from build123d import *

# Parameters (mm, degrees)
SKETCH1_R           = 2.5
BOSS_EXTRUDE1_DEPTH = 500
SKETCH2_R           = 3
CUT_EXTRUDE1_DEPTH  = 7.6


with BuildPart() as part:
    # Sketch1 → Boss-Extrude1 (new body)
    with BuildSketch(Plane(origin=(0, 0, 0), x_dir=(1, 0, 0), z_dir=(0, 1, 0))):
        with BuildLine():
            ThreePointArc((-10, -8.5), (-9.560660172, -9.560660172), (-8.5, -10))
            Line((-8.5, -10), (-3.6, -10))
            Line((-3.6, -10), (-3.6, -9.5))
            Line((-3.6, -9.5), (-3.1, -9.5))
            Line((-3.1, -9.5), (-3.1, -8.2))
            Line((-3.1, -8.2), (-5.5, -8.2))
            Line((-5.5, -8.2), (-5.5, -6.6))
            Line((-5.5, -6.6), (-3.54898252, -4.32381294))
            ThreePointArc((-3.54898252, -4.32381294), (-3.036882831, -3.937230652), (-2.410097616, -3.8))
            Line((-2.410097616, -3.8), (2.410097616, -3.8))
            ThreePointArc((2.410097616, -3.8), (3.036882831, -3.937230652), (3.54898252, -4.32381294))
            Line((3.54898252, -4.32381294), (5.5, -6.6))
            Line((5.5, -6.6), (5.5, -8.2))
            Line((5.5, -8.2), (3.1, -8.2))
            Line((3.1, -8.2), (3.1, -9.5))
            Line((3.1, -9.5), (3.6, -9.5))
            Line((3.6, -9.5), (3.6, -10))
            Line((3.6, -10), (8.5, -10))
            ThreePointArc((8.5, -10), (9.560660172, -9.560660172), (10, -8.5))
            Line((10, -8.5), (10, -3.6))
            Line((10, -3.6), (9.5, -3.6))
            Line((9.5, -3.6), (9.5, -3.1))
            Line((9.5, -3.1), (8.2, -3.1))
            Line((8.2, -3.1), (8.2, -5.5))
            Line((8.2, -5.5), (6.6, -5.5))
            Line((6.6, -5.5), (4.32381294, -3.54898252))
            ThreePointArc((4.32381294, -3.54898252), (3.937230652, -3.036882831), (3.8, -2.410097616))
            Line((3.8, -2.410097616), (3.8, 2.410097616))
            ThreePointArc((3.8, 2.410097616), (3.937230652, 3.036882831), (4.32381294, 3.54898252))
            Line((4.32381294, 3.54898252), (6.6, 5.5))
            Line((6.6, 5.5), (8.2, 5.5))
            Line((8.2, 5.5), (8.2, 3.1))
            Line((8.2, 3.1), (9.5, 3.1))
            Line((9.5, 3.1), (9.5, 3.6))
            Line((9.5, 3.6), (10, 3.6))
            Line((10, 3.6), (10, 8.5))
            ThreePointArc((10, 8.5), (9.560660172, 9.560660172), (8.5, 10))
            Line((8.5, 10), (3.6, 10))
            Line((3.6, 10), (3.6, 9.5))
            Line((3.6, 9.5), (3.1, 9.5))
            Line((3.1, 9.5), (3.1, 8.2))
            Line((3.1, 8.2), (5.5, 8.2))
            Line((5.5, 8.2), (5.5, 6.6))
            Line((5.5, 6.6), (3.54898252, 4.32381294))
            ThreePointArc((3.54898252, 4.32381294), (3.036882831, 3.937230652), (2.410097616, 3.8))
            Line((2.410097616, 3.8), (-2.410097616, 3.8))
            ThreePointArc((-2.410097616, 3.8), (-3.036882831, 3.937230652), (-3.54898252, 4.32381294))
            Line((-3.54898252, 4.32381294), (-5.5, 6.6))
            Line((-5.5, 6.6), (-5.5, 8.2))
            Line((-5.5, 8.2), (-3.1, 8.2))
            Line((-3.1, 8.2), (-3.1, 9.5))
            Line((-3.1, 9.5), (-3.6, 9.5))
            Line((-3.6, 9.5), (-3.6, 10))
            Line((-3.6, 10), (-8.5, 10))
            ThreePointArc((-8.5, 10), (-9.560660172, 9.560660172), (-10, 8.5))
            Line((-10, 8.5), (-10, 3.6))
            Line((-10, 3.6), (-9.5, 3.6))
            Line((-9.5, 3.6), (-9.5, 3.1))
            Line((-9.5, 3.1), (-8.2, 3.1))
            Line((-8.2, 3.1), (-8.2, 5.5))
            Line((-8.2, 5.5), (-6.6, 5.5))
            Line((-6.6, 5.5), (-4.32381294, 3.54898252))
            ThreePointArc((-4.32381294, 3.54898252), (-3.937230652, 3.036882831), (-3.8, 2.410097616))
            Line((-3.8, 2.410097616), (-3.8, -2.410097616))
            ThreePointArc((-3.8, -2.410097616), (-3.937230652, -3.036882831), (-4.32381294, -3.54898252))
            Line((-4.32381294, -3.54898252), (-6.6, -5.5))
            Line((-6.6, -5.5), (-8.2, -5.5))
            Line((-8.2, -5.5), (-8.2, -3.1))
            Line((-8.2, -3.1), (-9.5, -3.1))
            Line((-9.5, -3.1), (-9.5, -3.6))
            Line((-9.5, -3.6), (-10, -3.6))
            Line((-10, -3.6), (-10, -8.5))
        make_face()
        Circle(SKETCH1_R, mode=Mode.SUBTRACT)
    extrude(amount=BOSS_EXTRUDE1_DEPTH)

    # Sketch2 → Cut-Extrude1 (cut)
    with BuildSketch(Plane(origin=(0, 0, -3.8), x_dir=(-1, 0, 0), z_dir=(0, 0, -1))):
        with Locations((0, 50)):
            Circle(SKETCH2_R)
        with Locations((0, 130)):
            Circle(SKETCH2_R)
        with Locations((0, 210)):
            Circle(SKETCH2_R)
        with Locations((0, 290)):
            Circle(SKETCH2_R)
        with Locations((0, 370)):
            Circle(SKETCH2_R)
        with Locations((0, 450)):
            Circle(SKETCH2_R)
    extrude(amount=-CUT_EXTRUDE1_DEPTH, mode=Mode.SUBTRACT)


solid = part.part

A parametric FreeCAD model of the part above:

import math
import FreeCAD as App
import Part
import Sketcher

V = App.Vector

doc = App.newDocument("Part")
body = doc.addObject("PartDesign::Body", "Body")

sketch1 = body.newObject("Sketcher::SketchObject", "Sketch")
sketch1.AttachmentSupport = (doc.getObject("XZ_Plane"), [""])
sketch1.MapMode = "FlatFace"
sketch1.addGeometry(Part.ArcOfCircle(Part.Circle(V(-8.5, 8.5, 0), V(0, 0, 1), 1.5), math.radians(90), math.radians(180)), False)
sketch1.addGeometry(Part.LineSegment(V(-8.5, 10, 0), V(-3.6, 10, 0)), False)
sketch1.addGeometry(Part.LineSegment(V(-3.6, 10, 0), V(-3.6, 9.5, 0)), False)
sketch1.addGeometry(Part.LineSegment(V(-3.6, 9.5, 0), V(-3.1, 9.5, 0)), False)
sketch1.addGeometry(Part.LineSegment(V(-3.1, 9.5, 0), V(-3.1, 8.2, 0)), False)
sketch1.addGeometry(Part.LineSegment(V(-3.1, 8.2, 0), V(-5.5, 8.2, 0)), False)
sketch1.addGeometry(Part.LineSegment(V(-5.5, 8.2, 0), V(-5.5, 6.6, 0)), False)
sketch1.addGeometry(Part.LineSegment(V(-5.5, 6.6, 0), V(-3.548983, 4.323813, 0)), False)
sketch1.addGeometry(Part.ArcOfCircle(Part.Circle(V(-2.410098, 5.3, 0), V(0, 0, 1), 1.5), math.radians(-139.398705), math.radians(-90)), False)
sketch1.addGeometry(Part.LineSegment(V(-2.410098, 3.8, 0), V(2.410098, 3.8, 0)), False)
sketch1.addGeometry(Part.ArcOfCircle(Part.Circle(V(2.410098, 5.3, 0), V(0, 0, 1), 1.5), math.radians(-90), math.radians(-40.601295)), False)
sketch1.addGeometry(Part.LineSegment(V(3.548983, 4.323813, 0), V(5.5, 6.6, 0)), False)
sketch1.addGeometry(Part.LineSegment(V(5.5, 6.6, 0), V(5.5, 8.2, 0)), False)
sketch1.addGeometry(Part.LineSegment(V(5.5, 8.2, 0), V(3.1, 8.2, 0)), False)
sketch1.addGeometry(Part.LineSegment(V(3.1, 8.2, 0), V(3.1, 9.5, 0)), False)
sketch1.addGeometry(Part.LineSegment(V(3.1, 9.5, 0), V(3.6, 9.5, 0)), False)
sketch1.addGeometry(Part.LineSegment(V(3.6, 9.5, 0), V(3.6, 10, 0)), False)
sketch1.addGeometry(Part.LineSegment(V(3.6, 10, 0), V(8.5, 10, 0)), False)
sketch1.addGeometry(Part.ArcOfCircle(Part.Circle(V(8.5, 8.5, 0), V(0, 0, 1), 1.5), math.radians(0), math.radians(90)), False)
sketch1.addGeometry(Part.LineSegment(V(10, 8.5, 0), V(10, 3.6, 0)), False)
sketch1.addGeometry(Part.LineSegment(V(10, 3.6, 0), V(9.5, 3.6, 0)), False)
sketch1.addGeometry(Part.LineSegment(V(9.5, 3.6, 0), V(9.5, 3.1, 0)), False)
sketch1.addGeometry(Part.LineSegment(V(9.5, 3.1, 0), V(8.2, 3.1, 0)), False)
sketch1.addGeometry(Part.LineSegment(V(8.2, 3.1, 0), V(8.2, 5.5, 0)), False)
sketch1.addGeometry(Part.LineSegment(V(8.2, 5.5, 0), V(6.6, 5.5, 0)), False)
sketch1.addGeometry(Part.LineSegment(V(6.6, 5.5, 0), V(4.323813, 3.548983, 0)), False)
sketch1.addGeometry(Part.ArcOfCircle(Part.Circle(V(5.3, 2.410098, 0), V(0, 0, 1), 1.5), math.radians(130.601295), math.radians(180)), False)
sketch1.addGeometry(Part.LineSegment(V(3.8, 2.410098, 0), V(3.8, -2.410098, 0)), False)
sketch1.addGeometry(Part.ArcOfCircle(Part.Circle(V(5.3, -2.410098, 0), V(0, 0, 1), 1.5), math.radians(180), math.radians(229.398705)), False)
sketch1.addGeometry(Part.LineSegment(V(4.323813, -3.548983, 0), V(6.6, -5.5, 0)), False)
sketch1.addGeometry(Part.LineSegment(V(6.6, -5.5, 0), V(8.2, -5.5, 0)), False)
sketch1.addGeometry(Part.LineSegment(V(8.2, -5.5, 0), V(8.2, -3.1, 0)), False)
sketch1.addGeometry(Part.LineSegment(V(8.2, -3.1, 0), V(9.5, -3.1, 0)), False)
sketch1.addGeometry(Part.LineSegment(V(9.5, -3.1, 0), V(9.5, -3.6, 0)), False)
sketch1.addGeometry(Part.LineSegment(V(9.5, -3.6, 0), V(10, -3.6, 0)), False)
sketch1.addGeometry(Part.LineSegment(V(10, -3.6, 0), V(10, -8.5, 0)), False)
sketch1.addGeometry(Part.ArcOfCircle(Part.Circle(V(8.5, -8.5, 0), V(0, 0, 1), 1.5), math.radians(-90), math.radians(0)), False)
sketch1.addGeometry(Part.LineSegment(V(8.5, -10, 0), V(3.6, -10, 0)), False)
sketch1.addGeometry(Part.LineSegment(V(3.6, -10, 0), V(3.6, -9.5, 0)), False)
sketch1.addGeometry(Part.LineSegment(V(3.6, -9.5, 0), V(3.1, -9.5, 0)), False)
sketch1.addGeometry(Part.LineSegment(V(3.1, -9.5, 0), V(3.1, -8.2, 0)), False)
sketch1.addGeometry(Part.LineSegment(V(3.1, -8.2, 0), V(5.5, -8.2, 0)), False)
sketch1.addGeometry(Part.LineSegment(V(5.5, -8.2, 0), V(5.5, -6.6, 0)), False)
sketch1.addGeometry(Part.LineSegment(V(5.5, -6.6, 0), V(3.548983, -4.323813, 0)), False)
sketch1.addGeometry(Part.ArcOfCircle(Part.Circle(V(2.410098, -5.3, 0), V(0, 0, 1), 1.5), math.radians(40.601295), math.radians(90)), False)
sketch1.addGeometry(Part.LineSegment(V(2.410098, -3.8, 0), V(-2.410098, -3.8, 0)), False)
sketch1.addGeometry(Part.ArcOfCircle(Part.Circle(V(-2.410098, -5.3, 0), V(0, 0, 1), 1.5), math.radians(90), math.radians(139.398705)), False)
sketch1.addGeometry(Part.LineSegment(V(-3.548983, -4.323813, 0), V(-5.5, -6.6, 0)), False)
sketch1.addGeometry(Part.LineSegment(V(-5.5, -6.6, 0), V(-5.5, -8.2, 0)), False)
sketch1.addGeometry(Part.LineSegment(V(-5.5, -8.2, 0), V(-3.1, -8.2, 0)), False)
sketch1.addGeometry(Part.LineSegment(V(-3.1, -8.2, 0), V(-3.1, -9.5, 0)), False)
sketch1.addGeometry(Part.LineSegment(V(-3.1, -9.5, 0), V(-3.6, -9.5, 0)), False)
sketch1.addGeometry(Part.LineSegment(V(-3.6, -9.5, 0), V(-3.6, -10, 0)), False)
sketch1.addGeometry(Part.LineSegment(V(-3.6, -10, 0), V(-8.5, -10, 0)), False)
sketch1.addGeometry(Part.ArcOfCircle(Part.Circle(V(-8.5, -8.5, 0), V(0, 0, 1), 1.5), math.radians(180), math.radians(270)), False)
sketch1.addGeometry(Part.LineSegment(V(-10, -8.5, 0), V(-10, -3.6, 0)), False)
sketch1.addGeometry(Part.LineSegment(V(-10, -3.6, 0), V(-9.5, -3.6, 0)), False)
sketch1.addGeometry(Part.LineSegment(V(-9.5, -3.6, 0), V(-9.5, -3.1, 0)), False)
sketch1.addGeometry(Part.LineSegment(V(-9.5, -3.1, 0), V(-8.2, -3.1, 0)), False)
sketch1.addGeometry(Part.LineSegment(V(-8.2, -3.1, 0), V(-8.2, -5.5, 0)), False)
sketch1.addGeometry(Part.LineSegment(V(-8.2, -5.5, 0), V(-6.6, -5.5, 0)), False)
sketch1.addGeometry(Part.LineSegment(V(-6.6, -5.5, 0), V(-4.323813, -3.548983, 0)), False)
sketch1.addGeometry(Part.ArcOfCircle(Part.Circle(V(-5.3, -2.410098, 0), V(0, 0, 1), 1.5), math.radians(-49.398705), math.radians(0)), False)
sketch1.addGeometry(Part.LineSegment(V(-3.8, -2.410098, 0), V(-3.8, 2.410098, 0)), False)
sketch1.addGeometry(Part.ArcOfCircle(Part.Circle(V(-5.3, 2.410098, 0), V(0, 0, 1), 1.5), math.radians(0), math.radians(49.398705)), False)
sketch1.addGeometry(Part.LineSegment(V(-4.323813, 3.548983, 0), V(-6.6, 5.5, 0)), False)
sketch1.addGeometry(Part.LineSegment(V(-6.6, 5.5, 0), V(-8.2, 5.5, 0)), False)
sketch1.addGeometry(Part.LineSegment(V(-8.2, 5.5, 0), V(-8.2, 3.1, 0)), False)
sketch1.addGeometry(Part.LineSegment(V(-8.2, 3.1, 0), V(-9.5, 3.1, 0)), False)
sketch1.addGeometry(Part.LineSegment(V(-9.5, 3.1, 0), V(-9.5, 3.6, 0)), False)
sketch1.addGeometry(Part.LineSegment(V(-9.5, 3.6, 0), V(-10, 3.6, 0)), False)
sketch1.addGeometry(Part.LineSegment(V(-10, 3.6, 0), V(-10, 8.5, 0)), False)
sketch1.addGeometry(Part.Circle(V(0, 0, 0), V(0, 0, 1), 2.5), False)
sketch1.addConstraint(Sketcher.Constraint("Tangent", 0, 1, 1, 1))
sketch1.addConstraint(Sketcher.Constraint("Coincident", 1, 2, 2, 1))
sketch1.addConstraint(Sketcher.Constraint("Coincident", 2, 2, 3, 1))
sketch1.addConstraint(Sketcher.Constraint("Coincident", 3, 2, 4, 1))
sketch1.addConstraint(Sketcher.Constraint("Coincident", 4, 2, 5, 1))
sketch1.addConstraint(Sketcher.Constraint("Coincident", 5, 2, 6, 1))
sketch1.addConstraint(Sketcher.Constraint("Coincident", 6, 2, 7, 1))
sketch1.addConstraint(Sketcher.Constraint("Tangent", 7, 2, 8, 1))
sketch1.addConstraint(Sketcher.Constraint("Tangent", 8, 2, 9, 1))
sketch1.addConstraint(Sketcher.Constraint("Tangent", 9, 2, 10, 1))
sketch1.addConstraint(Sketcher.Constraint("Tangent", 10, 2, 11, 1))
sketch1.addConstraint(Sketcher.Constraint("Coincident", 11, 2, 12, 1))
sketch1.addConstraint(Sketcher.Constraint("Coincident", 12, 2, 13, 1))
sketch1.addConstraint(Sketcher.Constraint("Coincident", 13, 2, 14, 1))
sketch1.addConstraint(Sketcher.Constraint("Coincident", 14, 2, 15, 1))
sketch1.addConstraint(Sketcher.Constraint("Coincident", 15, 2, 16, 1))
sketch1.addConstraint(Sketcher.Constraint("Coincident", 16, 2, 17, 1))
sketch1.addConstraint(Sketcher.Constraint("Tangent", 17, 2, 18, 2))
sketch1.addConstraint(Sketcher.Constraint("Tangent", 18, 1, 19, 1))
sketch1.addConstraint(Sketcher.Constraint("Coincident", 19, 2, 20, 1))
sketch1.addConstraint(Sketcher.Constraint("Coincident", 20, 2, 21, 1))
sketch1.addConstraint(Sketcher.Constraint("Coincident", 21, 2, 22, 1))
sketch1.addConstraint(Sketcher.Constraint("Coincident", 22, 2, 23, 1))
sketch1.addConstraint(Sketcher.Constraint("Coincident", 23, 2, 24, 1))
sketch1.addConstraint(Sketcher.Constraint("Coincident", 24, 2, 25, 1))
sketch1.addConstraint(Sketcher.Constraint("Tangent", 25, 2, 26, 1))
sketch1.addConstraint(Sketcher.Constraint("Tangent", 26, 2, 27, 1))
sketch1.addConstraint(Sketcher.Constraint("Tangent", 27, 2, 28, 1))
sketch1.addConstraint(Sketcher.Constraint("Tangent", 28, 2, 29, 1))
sketch1.addConstraint(Sketcher.Constraint("Coincident", 29, 2, 30, 1))
sketch1.addConstraint(Sketcher.Constraint("Coincident", 30, 2, 31, 1))
sketch1.addConstraint(Sketcher.Constraint("Coincident", 31, 2, 32, 1))
sketch1.addConstraint(Sketcher.Constraint("Coincident", 32, 2, 33, 1))
sketch1.addConstraint(Sketcher.Constraint("Coincident", 33, 2, 34, 1))
sketch1.addConstraint(Sketcher.Constraint("Coincident", 34, 2, 35, 1))
sketch1.addConstraint(Sketcher.Constraint("Tangent", 35, 2, 36, 2))
sketch1.addConstraint(Sketcher.Constraint("Tangent", 36, 1, 37, 1))
sketch1.addConstraint(Sketcher.Constraint("Coincident", 37, 2, 38, 1))
sketch1.addConstraint(Sketcher.Constraint("Coincident", 38, 2, 39, 1))
sketch1.addConstraint(Sketcher.Constraint("Coincident", 39, 2, 40, 1))
sketch1.addConstraint(Sketcher.Constraint("Coincident", 40, 2, 41, 1))
sketch1.addConstraint(Sketcher.Constraint("Coincident", 41, 2, 42, 1))
sketch1.addConstraint(Sketcher.Constraint("Coincident", 42, 2, 43, 1))
sketch1.addConstraint(Sketcher.Constraint("Tangent", 43, 2, 44, 1))
sketch1.addConstraint(Sketcher.Constraint("Tangent", 44, 2, 45, 1))
sketch1.addConstraint(Sketcher.Constraint("Tangent", 45, 2, 46, 1))
sketch1.addConstraint(Sketcher.Constraint("Tangent", 46, 2, 47, 1))
sketch1.addConstraint(Sketcher.Constraint("Coincident", 47, 2, 48, 1))
sketch1.addConstraint(Sketcher.Constraint("Coincident", 48, 2, 49, 1))
sketch1.addConstraint(Sketcher.Constraint("Coincident", 49, 2, 50, 1))
sketch1.addConstraint(Sketcher.Constraint("Coincident", 50, 2, 51, 1))
sketch1.addConstraint(Sketcher.Constraint("Coincident", 51, 2, 52, 1))
sketch1.addConstraint(Sketcher.Constraint("Coincident", 52, 2, 53, 1))
sketch1.addConstraint(Sketcher.Constraint("Tangent", 53, 2, 54, 2))
sketch1.addConstraint(Sketcher.Constraint("Tangent", 54, 1, 55, 1))
sketch1.addConstraint(Sketcher.Constraint("Coincident", 55, 2, 56, 1))
sketch1.addConstraint(Sketcher.Constraint("Coincident", 56, 2, 57, 1))
sketch1.addConstraint(Sketcher.Constraint("Coincident", 57, 2, 58, 1))
sketch1.addConstraint(Sketcher.Constraint("Coincident", 58, 2, 59, 1))
sketch1.addConstraint(Sketcher.Constraint("Coincident", 59, 2, 60, 1))
sketch1.addConstraint(Sketcher.Constraint("Coincident", 60, 2, 61, 1))
sketch1.addConstraint(Sketcher.Constraint("Tangent", 61, 2, 62, 1))
sketch1.addConstraint(Sketcher.Constraint("Tangent", 62, 2, 63, 1))
sketch1.addConstraint(Sketcher.Constraint("Tangent", 63, 2, 64, 1))
sketch1.addConstraint(Sketcher.Constraint("Tangent", 64, 2, 65, 1))
sketch1.addConstraint(Sketcher.Constraint("Coincident", 65, 2, 66, 1))
sketch1.addConstraint(Sketcher.Constraint("Coincident", 66, 2, 67, 1))
sketch1.addConstraint(Sketcher.Constraint("Coincident", 67, 2, 68, 1))
sketch1.addConstraint(Sketcher.Constraint("Coincident", 68, 2, 69, 1))
sketch1.addConstraint(Sketcher.Constraint("Coincident", 69, 2, 70, 1))
sketch1.addConstraint(Sketcher.Constraint("Coincident", 70, 2, 71, 1))
sketch1.addConstraint(Sketcher.Constraint("Tangent", 71, 2, 0, 2))
sketch1.addConstraint(Sketcher.Constraint("Horizontal", 1))
sketch1.addConstraint(Sketcher.Constraint("Vertical", 2))
sketch1.addConstraint(Sketcher.Constraint("Horizontal", 3))
sketch1.addConstraint(Sketcher.Constraint("Vertical", 4))
sketch1.addConstraint(Sketcher.Constraint("Horizontal", 5))
sketch1.addConstraint(Sketcher.Constraint("Vertical", 6))
sketch1.addConstraint(Sketcher.Constraint("Horizontal", 9))
sketch1.addConstraint(Sketcher.Constraint("Vertical", 12))
sketch1.addConstraint(Sketcher.Constraint("Horizontal", 13))
sketch1.addConstraint(Sketcher.Constraint("Vertical", 14))
sketch1.addConstraint(Sketcher.Constraint("Horizontal", 15))
sketch1.addConstraint(Sketcher.Constraint("Vertical", 16))
sketch1.addConstraint(Sketcher.Constraint("Horizontal", 17))
sketch1.addConstraint(Sketcher.Constraint("Vertical", 19))
sketch1.addConstraint(Sketcher.Constraint("Horizontal", 20))
sketch1.addConstraint(Sketcher.Constraint("Vertical", 21))
sketch1.addConstraint(Sketcher.Constraint("Horizontal", 22))
sketch1.addConstraint(Sketcher.Constraint("Vertical", 23))
sketch1.addConstraint(Sketcher.Constraint("Horizontal", 24))
sketch1.addConstraint(Sketcher.Constraint("Vertical", 27))
sketch1.addConstraint(Sketcher.Constraint("Horizontal", 30))
sketch1.addConstraint(Sketcher.Constraint("Vertical", 31))
sketch1.addConstraint(Sketcher.Constraint("Horizontal", 32))
sketch1.addConstraint(Sketcher.Constraint("Vertical", 33))
sketch1.addConstraint(Sketcher.Constraint("Horizontal", 34))
sketch1.addConstraint(Sketcher.Constraint("Vertical", 35))
sketch1.addConstraint(Sketcher.Constraint("Horizontal", 37))
sketch1.addConstraint(Sketcher.Constraint("Vertical", 38))
sketch1.addConstraint(Sketcher.Constraint("Horizontal", 39))
sketch1.addConstraint(Sketcher.Constraint("Vertical", 40))
sketch1.addConstraint(Sketcher.Constraint("Horizontal", 41))
sketch1.addConstraint(Sketcher.Constraint("Vertical", 42))
sketch1.addConstraint(Sketcher.Constraint("Horizontal", 45))
sketch1.addConstraint(Sketcher.Constraint("Vertical", 48))
sketch1.addConstraint(Sketcher.Constraint("Horizontal", 49))
sketch1.addConstraint(Sketcher.Constraint("Vertical", 50))
sketch1.addConstraint(Sketcher.Constraint("Horizontal", 51))
sketch1.addConstraint(Sketcher.Constraint("Vertical", 52))
sketch1.addConstraint(Sketcher.Constraint("Horizontal", 53))
sketch1.addConstraint(Sketcher.Constraint("Vertical", 55))
sketch1.addConstraint(Sketcher.Constraint("Horizontal", 56))
sketch1.addConstraint(Sketcher.Constraint("Vertical", 57))
sketch1.addConstraint(Sketcher.Constraint("Horizontal", 58))
sketch1.addConstraint(Sketcher.Constraint("Vertical", 59))
sketch1.addConstraint(Sketcher.Constraint("Horizontal", 60))
sketch1.addConstraint(Sketcher.Constraint("Vertical", 63))
sketch1.addConstraint(Sketcher.Constraint("Horizontal", 66))
sketch1.addConstraint(Sketcher.Constraint("Vertical", 67))
sketch1.addConstraint(Sketcher.Constraint("Horizontal", 68))
sketch1.addConstraint(Sketcher.Constraint("Vertical", 69))
sketch1.addConstraint(Sketcher.Constraint("Horizontal", 70))
sketch1.addConstraint(Sketcher.Constraint("Vertical", 71))
sketch1.addConstraint(Sketcher.Constraint("Coincident", 72, 3, -1, 1))
sketch1.addConstraint(Sketcher.Constraint("Equal", 0, 8))
sketch1.addConstraint(Sketcher.Constraint("Equal", 8, 10))
sketch1.addConstraint(Sketcher.Constraint("Equal", 10, 18))
sketch1.addConstraint(Sketcher.Constraint("Equal", 18, 26))
sketch1.addConstraint(Sketcher.Constraint("Equal", 26, 28))
sketch1.addConstraint(Sketcher.Constraint("Equal", 28, 36))
sketch1.addConstraint(Sketcher.Constraint("Equal", 36, 44))
sketch1.addConstraint(Sketcher.Constraint("Equal", 44, 46))
sketch1.addConstraint(Sketcher.Constraint("Equal", 46, 54))
sketch1.addConstraint(Sketcher.Constraint("Equal", 54, 62))
sketch1.addConstraint(Sketcher.Constraint("Equal", 62, 64))
sketch1.addConstraint(Sketcher.Constraint("Symmetric", 0, 3, 36, 3, -1, 1))
sketch1.addConstraint(Sketcher.Constraint("Symmetric", 8, 3, 44, 3, -1, 1))
sketch1.addConstraint(Sketcher.Constraint("Symmetric", 18, 3, 54, 3, -1, 1))
sketch1.addConstraint(Sketcher.Constraint("Symmetric", 26, 3, 62, 3, -1, 1))
sketch1.addConstraint(Sketcher.Constraint("Symmetric", 2, 2, 38, 2, -1, 1))
sketch1.addConstraint(Sketcher.Constraint("Symmetric", 4, 2, 40, 2, -1, 1))
sketch1.addConstraint(Sketcher.Constraint("Symmetric", 6, 2, 42, 2, -1, 1))
sketch1.addConstraint(Sketcher.Constraint("Symmetric", 10, 2, 46, 2, -1, 1))
sketch1.addConstraint(Sketcher.Constraint("Symmetric", 12, 2, 48, 2, -1, 1))
sketch1.addConstraint(Sketcher.Constraint("Symmetric", 14, 2, 50, 2, -1, 1))
sketch1.addConstraint(Sketcher.Constraint("Symmetric", 20, 2, 56, 2, -1, 1))
sketch1.addConstraint(Sketcher.Constraint("Symmetric", 22, 2, 58, 2, -1, 1))
sketch1.addConstraint(Sketcher.Constraint("Symmetric", 24, 2, 60, 2, -1, 1))
sketch1.addConstraint(Sketcher.Constraint("Symmetric", 28, 2, 64, 2, -1, 1))
sketch1.addConstraint(Sketcher.Constraint("Symmetric", 30, 2, 66, 2, -1, 1))
sketch1.addConstraint(Sketcher.Constraint("Symmetric", 32, 2, 68, 2, -1, 1))
sketch1.addConstraint(Sketcher.Constraint("Symmetric", 0, 3, 18, 3, -2))
sketch1.addConstraint(Sketcher.Constraint("Symmetric", 7, 2, 10, 2, -2))
sketch1.addConstraint(Sketcher.Constraint("Symmetric", 5, 2, 12, 2, -2))
sketch1.addConstraint(Sketcher.Constraint("Symmetric", 3, 2, 14, 2, -2))
sketch1.addConstraint(Sketcher.Constraint("Symmetric", 33, 2, 56, 2, -2))
sketch1.addConstraint(Sketcher.Constraint("Symmetric", 31, 2, 58, 2, -2))
sketch1.addConstraint(Sketcher.Constraint("Symmetric", 29, 2, 60, 2, -2))
sketch1.addConstraint(Sketcher.Constraint("Perpendicular", 7, 25))
sketch1.addConstraint(Sketcher.Constraint("Perpendicular", 11, 29))
sketch1.addConstraint(Sketcher.Constraint("Horizontal", 20, 2, 69, 2))
sketch1.addConstraint(Sketcher.Constraint("Vertical", 16, 2, 37, 2))
sketch1.addConstraint(Sketcher.Constraint("Vertical", 2, 2, 51, 2))
sketch1.addConstraint(Sketcher.Constraint("Equal", 15, 20))
sketch1.addConstraint(Sketcher.Constraint("Equal", 70, 2))
sketch1.addConstraint(Sketcher.Constraint("Equal", 68, 4))
sketch1.addConstraint(Sketcher.Constraint("Equal", 66, 6))
sketch1.addConstraint(Sketcher.Constraint("Equal", 53, 19))
sketch1.addConstraint(Sketcher.Constraint("Equal", 16, 21))
sketch1.addConstraint(Sketcher.Constraint("Equal", 49, 23))
sketch1.addConstraint(Sketcher.Constraint("Equal", 45, 27))
sketch1.addConstraint(Sketcher.Constraint("Equal", 11, 25))
sketch1.addConstraint(Sketcher.Constraint("Diameter", 72, 5.0))
sketch1.addConstraint(Sketcher.Constraint("Radius", 0, 1.5))
sketch1.addConstraint(Sketcher.Constraint("DistanceX", 1, 1, 1, 2, 4.9))
sketch1.addConstraint(Sketcher.Constraint("DistanceX", 3, 1, 3, 2, 0.5))
sketch1.addConstraint(Sketcher.Constraint("DistanceX", 5, 2, 5, 1, 2.4))
sketch1.addConstraint(Sketcher.Constraint("DistanceX", 22, 2, 22, 1, 1.3))
sketch1.addConstraint(Sketcher.Constraint("DistanceX", 24, 2, 24, 1, 1.6))
sketch1.addConstraint(Sketcher.Constraint("DistanceY", -1, 1, 0, 1, 10.0))
sketch1.addConstraint(Sketcher.Constraint("DistanceY", -1, 1, 8, 3, 5.3))
sketch1.addConstraint(Sketcher.Constraint("DistanceX", 9, 1, 9, 2, 4.820195))
pad1 = body.newObject("PartDesign::Pad", "Pad")
pad1.Profile = sketch1
pad1.Length = 500
pad1.Reversed = True

sketch2 = body.newObject("Sketcher::SketchObject", "Sketch001")
sketch2.AttachmentSupport = (doc.getObject("XY_Plane"), [""])
sketch2.MapMode = "FlatFace"
sketch2.AttachmentOffset = App.Placement(V(0, 0, -3.8), App.Rotation())
sketch2.addGeometry(Part.Circle(V(0, 50, 0), V(0, 0, 1), 3), False)
sketch2.addGeometry(Part.Circle(V(0, 130, 0), V(0, 0, 1), 3), False)
sketch2.addGeometry(Part.Circle(V(0, 210, 0), V(0, 0, 1), 3), False)
sketch2.addGeometry(Part.Circle(V(0, 290, 0), V(0, 0, 1), 3), False)
sketch2.addGeometry(Part.Circle(V(0, 370, 0), V(0, 0, 1), 3), False)
sketch2.addGeometry(Part.Circle(V(0, 450, 0), V(0, 0, 1), 3), False)
sketch2.addConstraint(Sketcher.Constraint("Equal", 0, 1))
sketch2.addConstraint(Sketcher.Constraint("Equal", 1, 2))
sketch2.addConstraint(Sketcher.Constraint("Equal", 2, 3))
sketch2.addConstraint(Sketcher.Constraint("Equal", 3, 4))
sketch2.addConstraint(Sketcher.Constraint("Equal", 4, 5))
sketch2.addConstraint(Sketcher.Constraint("PointOnObject", 0, 3, -2))
sketch2.addConstraint(Sketcher.Constraint("PointOnObject", 1, 3, -2))
sketch2.addConstraint(Sketcher.Constraint("PointOnObject", 2, 3, -2))
sketch2.addConstraint(Sketcher.Constraint("PointOnObject", 3, 3, -2))
sketch2.addConstraint(Sketcher.Constraint("PointOnObject", 4, 3, -2))
sketch2.addConstraint(Sketcher.Constraint("PointOnObject", 5, 3, -2))
sketch2.addConstraint(Sketcher.Constraint("Diameter", 0, 6.0))
sketch2.addConstraint(Sketcher.Constraint("DistanceY", -1, 1, 0, 3, 50.0))
sketch2.addConstraint(Sketcher.Constraint("DistanceY", -1, 1, 1, 3, 130.0))
sketch2.addConstraint(Sketcher.Constraint("DistanceY", -1, 1, 2, 3, 210.0))
sketch2.addConstraint(Sketcher.Constraint("DistanceY", -1, 1, 3, 3, 290.0))
sketch2.addConstraint(Sketcher.Constraint("DistanceY", -1, 1, 4, 3, 370.0))
sketch2.addConstraint(Sketcher.Constraint("DistanceY", -1, 1, 5, 3, 450.0))
pocket1 = body.newObject("PartDesign::Pocket", "Pocket")
pocket1.Profile = sketch2
pocket1.Length = 7.6
pocket1.Reversed = True

doc.recompute()
